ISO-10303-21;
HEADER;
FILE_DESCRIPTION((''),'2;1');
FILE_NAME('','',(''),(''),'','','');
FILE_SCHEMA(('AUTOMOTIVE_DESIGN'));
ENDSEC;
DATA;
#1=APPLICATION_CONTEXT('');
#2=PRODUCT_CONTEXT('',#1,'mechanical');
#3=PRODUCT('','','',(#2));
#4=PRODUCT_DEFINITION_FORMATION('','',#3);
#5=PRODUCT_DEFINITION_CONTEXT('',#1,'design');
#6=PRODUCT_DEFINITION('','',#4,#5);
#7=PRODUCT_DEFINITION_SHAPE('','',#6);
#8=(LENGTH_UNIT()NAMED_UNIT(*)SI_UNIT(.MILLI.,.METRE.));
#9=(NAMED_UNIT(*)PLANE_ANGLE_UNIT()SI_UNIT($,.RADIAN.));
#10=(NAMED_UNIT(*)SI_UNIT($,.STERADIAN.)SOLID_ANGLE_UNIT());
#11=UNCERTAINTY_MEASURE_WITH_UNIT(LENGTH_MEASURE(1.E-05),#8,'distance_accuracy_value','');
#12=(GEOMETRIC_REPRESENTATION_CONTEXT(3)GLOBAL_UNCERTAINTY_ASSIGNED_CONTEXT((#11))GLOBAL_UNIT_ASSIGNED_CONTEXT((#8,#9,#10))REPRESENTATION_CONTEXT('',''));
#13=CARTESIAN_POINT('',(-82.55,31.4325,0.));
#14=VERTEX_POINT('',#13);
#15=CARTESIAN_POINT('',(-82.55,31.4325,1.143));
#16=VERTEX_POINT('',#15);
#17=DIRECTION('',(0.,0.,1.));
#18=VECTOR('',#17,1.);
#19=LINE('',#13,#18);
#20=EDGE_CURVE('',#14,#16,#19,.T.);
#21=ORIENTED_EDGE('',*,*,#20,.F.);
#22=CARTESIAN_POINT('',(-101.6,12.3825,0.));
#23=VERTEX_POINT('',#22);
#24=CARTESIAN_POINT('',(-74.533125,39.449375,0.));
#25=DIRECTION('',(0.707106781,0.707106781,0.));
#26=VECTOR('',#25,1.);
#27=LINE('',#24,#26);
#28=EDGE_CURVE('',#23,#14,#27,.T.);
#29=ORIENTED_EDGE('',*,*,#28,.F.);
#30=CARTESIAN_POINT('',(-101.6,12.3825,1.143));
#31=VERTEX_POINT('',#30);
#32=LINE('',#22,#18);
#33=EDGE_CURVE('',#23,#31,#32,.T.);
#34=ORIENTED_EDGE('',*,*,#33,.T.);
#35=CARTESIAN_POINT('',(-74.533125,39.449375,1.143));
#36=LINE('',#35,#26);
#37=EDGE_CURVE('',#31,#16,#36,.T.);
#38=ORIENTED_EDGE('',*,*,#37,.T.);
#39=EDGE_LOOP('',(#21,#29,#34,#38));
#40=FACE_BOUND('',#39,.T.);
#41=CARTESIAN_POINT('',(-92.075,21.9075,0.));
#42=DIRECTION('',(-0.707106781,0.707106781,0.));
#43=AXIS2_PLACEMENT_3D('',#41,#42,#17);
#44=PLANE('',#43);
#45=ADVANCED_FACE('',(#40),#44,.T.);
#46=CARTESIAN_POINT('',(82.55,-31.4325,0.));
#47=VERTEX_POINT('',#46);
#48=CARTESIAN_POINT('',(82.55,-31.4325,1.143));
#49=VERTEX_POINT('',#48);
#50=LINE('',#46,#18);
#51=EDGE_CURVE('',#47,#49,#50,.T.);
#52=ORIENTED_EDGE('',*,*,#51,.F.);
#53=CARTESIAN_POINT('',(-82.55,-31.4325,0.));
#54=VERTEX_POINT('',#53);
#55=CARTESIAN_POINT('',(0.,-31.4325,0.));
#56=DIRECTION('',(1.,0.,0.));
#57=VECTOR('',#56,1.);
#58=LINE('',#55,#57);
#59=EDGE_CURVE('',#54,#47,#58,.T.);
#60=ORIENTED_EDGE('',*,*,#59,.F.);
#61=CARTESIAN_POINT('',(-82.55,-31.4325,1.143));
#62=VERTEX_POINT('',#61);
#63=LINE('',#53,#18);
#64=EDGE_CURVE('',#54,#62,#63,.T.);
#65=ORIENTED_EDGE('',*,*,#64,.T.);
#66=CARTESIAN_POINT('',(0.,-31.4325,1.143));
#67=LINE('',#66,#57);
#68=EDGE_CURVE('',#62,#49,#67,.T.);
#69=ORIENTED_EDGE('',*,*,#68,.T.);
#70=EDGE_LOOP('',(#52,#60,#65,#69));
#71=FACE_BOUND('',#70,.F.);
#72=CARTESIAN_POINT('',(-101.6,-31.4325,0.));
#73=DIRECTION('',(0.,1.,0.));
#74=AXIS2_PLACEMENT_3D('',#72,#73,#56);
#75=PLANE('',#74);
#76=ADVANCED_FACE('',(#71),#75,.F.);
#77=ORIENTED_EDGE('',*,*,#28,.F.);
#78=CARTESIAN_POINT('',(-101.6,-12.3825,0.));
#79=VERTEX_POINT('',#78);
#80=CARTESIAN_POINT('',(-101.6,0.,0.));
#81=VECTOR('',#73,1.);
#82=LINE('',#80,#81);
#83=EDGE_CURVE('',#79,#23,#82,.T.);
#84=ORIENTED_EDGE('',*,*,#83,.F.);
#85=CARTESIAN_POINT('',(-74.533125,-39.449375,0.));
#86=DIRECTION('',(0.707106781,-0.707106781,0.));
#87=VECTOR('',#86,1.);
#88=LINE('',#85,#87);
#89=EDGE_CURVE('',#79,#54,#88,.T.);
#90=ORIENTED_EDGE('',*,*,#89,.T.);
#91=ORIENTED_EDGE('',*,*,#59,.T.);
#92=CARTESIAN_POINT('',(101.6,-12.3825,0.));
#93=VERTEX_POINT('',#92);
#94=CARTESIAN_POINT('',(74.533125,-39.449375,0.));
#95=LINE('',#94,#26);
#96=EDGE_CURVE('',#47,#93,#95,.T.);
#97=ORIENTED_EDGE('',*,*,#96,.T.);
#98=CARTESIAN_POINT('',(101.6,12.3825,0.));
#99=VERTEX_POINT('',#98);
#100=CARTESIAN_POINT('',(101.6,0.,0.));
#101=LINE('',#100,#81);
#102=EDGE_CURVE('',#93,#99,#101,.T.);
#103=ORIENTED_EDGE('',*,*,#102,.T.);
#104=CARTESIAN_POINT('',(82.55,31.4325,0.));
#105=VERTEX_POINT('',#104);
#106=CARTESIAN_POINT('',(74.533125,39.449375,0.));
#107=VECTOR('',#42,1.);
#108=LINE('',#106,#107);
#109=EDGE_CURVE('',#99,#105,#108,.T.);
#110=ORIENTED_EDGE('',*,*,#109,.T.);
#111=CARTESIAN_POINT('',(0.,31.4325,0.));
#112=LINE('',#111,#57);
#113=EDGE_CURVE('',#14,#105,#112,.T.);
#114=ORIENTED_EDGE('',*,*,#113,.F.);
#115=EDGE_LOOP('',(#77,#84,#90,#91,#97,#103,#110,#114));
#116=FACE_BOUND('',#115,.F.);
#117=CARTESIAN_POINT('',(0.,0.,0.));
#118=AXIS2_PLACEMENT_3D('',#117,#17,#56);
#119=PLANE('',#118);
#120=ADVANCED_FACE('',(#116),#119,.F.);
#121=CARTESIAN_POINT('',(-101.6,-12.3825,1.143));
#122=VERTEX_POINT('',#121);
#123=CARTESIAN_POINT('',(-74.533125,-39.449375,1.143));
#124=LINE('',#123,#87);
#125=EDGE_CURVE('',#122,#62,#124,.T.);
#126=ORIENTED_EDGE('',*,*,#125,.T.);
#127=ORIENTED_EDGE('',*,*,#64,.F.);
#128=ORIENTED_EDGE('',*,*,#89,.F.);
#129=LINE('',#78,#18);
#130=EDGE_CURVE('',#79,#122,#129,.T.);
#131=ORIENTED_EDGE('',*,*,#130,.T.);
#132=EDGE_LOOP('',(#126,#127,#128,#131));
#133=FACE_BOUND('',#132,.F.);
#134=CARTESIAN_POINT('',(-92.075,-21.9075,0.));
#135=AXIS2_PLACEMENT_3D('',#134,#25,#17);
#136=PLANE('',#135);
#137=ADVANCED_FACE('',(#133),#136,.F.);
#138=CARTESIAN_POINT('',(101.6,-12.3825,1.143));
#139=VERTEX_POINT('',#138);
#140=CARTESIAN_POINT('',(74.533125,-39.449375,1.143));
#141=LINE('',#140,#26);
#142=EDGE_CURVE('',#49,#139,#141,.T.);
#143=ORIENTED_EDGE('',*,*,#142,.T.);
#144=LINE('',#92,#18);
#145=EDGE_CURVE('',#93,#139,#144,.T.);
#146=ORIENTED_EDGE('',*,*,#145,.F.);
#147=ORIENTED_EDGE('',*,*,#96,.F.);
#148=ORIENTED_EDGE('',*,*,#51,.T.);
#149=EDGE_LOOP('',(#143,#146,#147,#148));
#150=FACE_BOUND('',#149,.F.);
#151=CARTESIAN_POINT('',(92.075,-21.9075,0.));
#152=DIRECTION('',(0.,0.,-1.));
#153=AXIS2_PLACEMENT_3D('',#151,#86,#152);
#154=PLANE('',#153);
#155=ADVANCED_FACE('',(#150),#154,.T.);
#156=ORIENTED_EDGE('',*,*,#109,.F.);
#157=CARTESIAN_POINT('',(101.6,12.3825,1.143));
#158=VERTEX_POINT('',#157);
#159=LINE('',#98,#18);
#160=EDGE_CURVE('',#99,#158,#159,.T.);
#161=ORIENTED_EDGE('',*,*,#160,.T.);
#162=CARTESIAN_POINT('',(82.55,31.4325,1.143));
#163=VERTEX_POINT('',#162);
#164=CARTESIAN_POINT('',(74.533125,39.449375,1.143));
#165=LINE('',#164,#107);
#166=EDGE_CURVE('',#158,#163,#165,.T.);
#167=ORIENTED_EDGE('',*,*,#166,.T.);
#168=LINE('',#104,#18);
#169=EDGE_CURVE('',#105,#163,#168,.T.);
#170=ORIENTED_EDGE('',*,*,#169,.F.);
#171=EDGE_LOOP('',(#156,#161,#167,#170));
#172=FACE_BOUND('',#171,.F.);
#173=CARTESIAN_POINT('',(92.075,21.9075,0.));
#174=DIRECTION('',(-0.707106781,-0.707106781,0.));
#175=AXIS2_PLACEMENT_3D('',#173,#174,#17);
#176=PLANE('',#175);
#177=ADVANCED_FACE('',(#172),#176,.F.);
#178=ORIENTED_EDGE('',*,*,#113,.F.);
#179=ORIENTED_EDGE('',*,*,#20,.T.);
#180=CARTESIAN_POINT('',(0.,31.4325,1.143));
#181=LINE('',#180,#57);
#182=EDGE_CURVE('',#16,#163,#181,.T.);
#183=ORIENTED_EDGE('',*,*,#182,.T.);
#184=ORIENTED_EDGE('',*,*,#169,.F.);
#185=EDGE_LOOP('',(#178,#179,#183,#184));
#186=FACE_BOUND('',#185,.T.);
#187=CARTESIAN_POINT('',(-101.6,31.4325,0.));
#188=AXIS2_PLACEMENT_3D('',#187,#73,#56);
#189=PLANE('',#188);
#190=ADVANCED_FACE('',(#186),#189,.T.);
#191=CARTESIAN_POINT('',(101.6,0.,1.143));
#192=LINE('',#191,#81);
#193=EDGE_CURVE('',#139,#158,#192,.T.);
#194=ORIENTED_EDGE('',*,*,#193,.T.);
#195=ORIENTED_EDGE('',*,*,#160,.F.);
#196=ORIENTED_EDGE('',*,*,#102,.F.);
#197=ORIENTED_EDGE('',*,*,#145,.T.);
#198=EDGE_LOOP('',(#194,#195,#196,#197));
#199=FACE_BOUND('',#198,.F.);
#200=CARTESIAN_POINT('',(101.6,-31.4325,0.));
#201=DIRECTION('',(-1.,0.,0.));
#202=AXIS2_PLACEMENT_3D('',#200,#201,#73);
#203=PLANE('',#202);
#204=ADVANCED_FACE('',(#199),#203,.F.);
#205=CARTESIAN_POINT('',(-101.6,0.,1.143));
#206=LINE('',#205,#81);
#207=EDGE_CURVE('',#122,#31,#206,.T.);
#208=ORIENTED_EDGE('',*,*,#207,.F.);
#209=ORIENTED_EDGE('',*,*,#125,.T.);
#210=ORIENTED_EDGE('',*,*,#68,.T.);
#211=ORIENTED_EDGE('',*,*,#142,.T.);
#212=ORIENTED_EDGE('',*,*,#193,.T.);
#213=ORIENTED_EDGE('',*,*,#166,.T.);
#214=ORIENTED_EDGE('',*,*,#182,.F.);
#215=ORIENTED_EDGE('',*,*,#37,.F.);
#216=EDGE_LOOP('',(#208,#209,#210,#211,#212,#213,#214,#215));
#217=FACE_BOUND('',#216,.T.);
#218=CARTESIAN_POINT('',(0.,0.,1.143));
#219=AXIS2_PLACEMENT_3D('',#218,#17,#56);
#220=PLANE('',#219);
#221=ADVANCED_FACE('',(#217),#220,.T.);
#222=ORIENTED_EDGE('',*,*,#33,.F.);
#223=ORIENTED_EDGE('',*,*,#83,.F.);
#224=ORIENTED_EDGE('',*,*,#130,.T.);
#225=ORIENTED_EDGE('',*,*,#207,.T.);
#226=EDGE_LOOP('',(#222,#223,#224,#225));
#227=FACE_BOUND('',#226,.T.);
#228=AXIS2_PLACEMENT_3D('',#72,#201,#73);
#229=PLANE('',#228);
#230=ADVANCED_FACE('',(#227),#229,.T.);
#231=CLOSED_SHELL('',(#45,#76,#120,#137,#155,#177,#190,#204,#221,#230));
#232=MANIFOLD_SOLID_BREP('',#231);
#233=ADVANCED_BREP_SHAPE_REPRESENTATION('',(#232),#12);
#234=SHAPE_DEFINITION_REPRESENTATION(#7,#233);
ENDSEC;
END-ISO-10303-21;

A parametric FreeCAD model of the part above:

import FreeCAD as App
import Part
import Sketcher
Q = App.Units.Quantity


def edges_at(feature, points):
    """Names of the edges that pass closest to the given points."""
    edges = feature.Shape.Edges
    near = lambda p: min(range(len(edges)), key=lambda i: edges[i].distToShape(Part.Vertex(*p))[0])
    return sorted({f"Edge{near(p) + 1}" for p in points})


def add_polygon(sketch, points):
    """Adds a closed chain of lines whose ends are joined by coincident constraints."""
    first, n = sketch.GeometryCount, len(points)
    for a, b in zip(points, points[1:] + points[:1]):
        sketch.addGeometry(Part.LineSegment(App.Vector(*a, 0), App.Vector(*b, 0)), False)
    for i in range(n):
        sketch.addConstraint(Sketcher.Constraint("Coincident", first + i, 2, first + (i + 1) % n, 1))

doc = App.newDocument("Part")
body = doc.addObject("PartDesign::Body", "Body")

# Sketch on XY plane
sketch1 = doc.addObject("Sketcher::SketchObject", "Sketch")
body.addObject(sketch1)
sketch1.AttachmentSupport = (doc.XY_Plane, [""])
sketch1.MapMode = "FlatFace"
add_polygon(sketch1, [(-102, 31), (-102, -31), (102, -31), (102, 31)])  # lines 0-3
sketch1.addConstraint(Sketcher.Constraint("Vertical", 0))
sketch1.addConstraint(Sketcher.Constraint("Horizontal", 1))
sketch1.addConstraint(Sketcher.Constraint("Vertical", 2))
sketch1.addConstraint(Sketcher.Constraint("Horizontal", 3))
sketch1.addConstraint(Sketcher.Constraint("Symmetric", 0, 2, 2, 2, -1, 1))
sketch1.addConstraint(Sketcher.Constraint("DistanceX", 1, 1, 1, 2, Q("8 in")))
sketch1.addConstraint(Sketcher.Constraint("DistanceY", 0, 2, 0, 1, Q("2.475 in")))
pad1 = doc.addObject("PartDesign::Pad", "Pad")
body.addObject(pad1)
pad1.Profile = sketch1
pad1.Length = Q("0.045 in")
doc.recompute()

chamfer = doc.addObject("PartDesign::Chamfer", "Chamfer")
body.addObject(chamfer)
chamfer.Base = (pad1, edges_at(pad1, [
    (-101.6, -31.433, 0.572),
    (-101.6, 31.433, 0.572),
    (101.6, 31.433, 0.572),
    (101.6, -31.433, 0.572),
]))
chamfer.Size = Q("0.75 in")

doc.recompute()
